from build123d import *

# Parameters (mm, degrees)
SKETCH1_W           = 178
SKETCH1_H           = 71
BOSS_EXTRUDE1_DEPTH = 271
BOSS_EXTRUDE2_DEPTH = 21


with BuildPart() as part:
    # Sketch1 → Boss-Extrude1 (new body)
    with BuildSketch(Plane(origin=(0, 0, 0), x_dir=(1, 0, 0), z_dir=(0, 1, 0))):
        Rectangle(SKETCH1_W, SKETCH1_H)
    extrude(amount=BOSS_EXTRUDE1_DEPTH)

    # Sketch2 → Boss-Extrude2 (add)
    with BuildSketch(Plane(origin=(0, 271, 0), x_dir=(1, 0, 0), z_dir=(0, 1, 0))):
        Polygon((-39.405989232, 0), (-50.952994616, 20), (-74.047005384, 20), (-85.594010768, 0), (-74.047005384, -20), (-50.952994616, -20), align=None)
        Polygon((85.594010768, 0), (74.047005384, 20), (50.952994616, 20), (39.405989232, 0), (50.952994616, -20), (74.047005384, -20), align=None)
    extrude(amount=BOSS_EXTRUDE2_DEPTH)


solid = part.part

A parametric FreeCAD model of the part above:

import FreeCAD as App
import Part
import Sketcher
from FreeCAD import Vector
Q = App.Units.Quantity


def add_polygon(sketch, points):
    """Adds a closed chain of lines whose ends are joined by coincident constraints."""
    first, n = sketch.GeometryCount, len(points)
    for a, b in zip(points, points[1:] + points[:1]):
        sketch.addGeometry(Part.LineSegment(App.Vector(*a, 0), App.Vector(*b, 0)), False)
    for i in range(n):
        sketch.addConstraint(Sketcher.Constraint("Coincident", first + i, 2, first + (i + 1) % n, 1))

doc = App.newDocument("Part")
body = doc.addObject("PartDesign::Body", "Body")

# Sketch on XZ plane
sketch1 = body.newObject("Sketcher::SketchObject", "Sketch")
sketch1.AttachmentSupport = (doc.getObject("XZ_Plane"), [""])
sketch1.MapMode = "FlatFace"
add_polygon(sketch1, [(-89, -36), (-89, 36), (89, 36), (89, -36)])  # lines 0-3
sketch1.addConstraint([
    Sketcher.Constraint("Vertical", 0),
    Sketcher.Constraint("Horizontal", 1),
    Sketcher.Constraint("Vertical", 2),
    Sketcher.Constraint("Horizontal", 3),
    Sketcher.Constraint("Symmetric", 0, 2, 2, 2, -1, 1),
    Sketcher.Constraint("DistanceX", 1, 1, 1, 2, Q("178 mm")),
    Sketcher.Constraint("DistanceY", 0, 1, 0, 2, Q("71 mm")),
])
pad1 = body.newObject("PartDesign::Pad", "Pad")
pad1.Profile = sketch1
pad1.Length = 271
pad1.Reversed = True

# Sketch on XZ plane
sketch2 = body.newObject("Sketcher::SketchObject", "Sketch001")
sketch2.AttachmentSupport = (doc.getObject("XZ_Plane"), [""])
sketch2.MapMode = "FlatFace"
sketch2.AttachmentOffset = App.Placement(Vector(0, 0, -271), App.Rotation())
add_polygon(sketch2, [(-39, 0), (-51, -20), (-74, -20), (-86, 0), (-74, 20), (-51, 20)])  # lines 0-5
add_polygon(sketch2, [(86, 0), (74, -20), (51, -20), (39, 0), (51, 20), (74, 20)])  # lines 6-11
sketch2.addConstraint([
    Sketcher.Constraint("Horizontal", 1),
    Sketcher.Constraint("Horizontal", 4),
    Sketcher.Constraint("Horizontal", 7),
    Sketcher.Constraint("Horizontal", 10),
    Sketcher.Constraint("Symmetric", 3, 2, 6, 2, -1, 1),
    Sketcher.Constraint("Symmetric", 5, 2, 8, 2, -1, 1),
    Sketcher.Constraint("Symmetric", 0, 2, 9, 2, -1, 1),
    Sketcher.Constraint("Symmetric", 2, 2, 11, 2, -1, 1),
    Sketcher.Constraint("Symmetric", 1, 2, 6, 2, -2),
    Sketcher.Constraint("PointOnObject", 2, 2, -1),
    Sketcher.Constraint("PointOnObject", 5, 2, -1),
    Sketcher.Constraint("Parallel", 0, 3),
    Sketcher.Constraint("Parallel", 2, 5),
    Sketcher.Constraint("Parallel", 5, 8),
    Sketcher.Constraint("Parallel", 8, 11),
    Sketcher.Constraint("Angle", 0, Q("-120 deg")),
    Sketcher.Constraint("DistanceY", 0, 2, -1, 1, Q("20 mm")),
    Sketcher.Constraint("DistanceX", 0, 2, 6, 2, Q("125 mm")),
    Sketcher.Constraint("DistanceX", 1, 2, 1, 1, Q("23.094011 mm")),
])
pad2 = body.newObject("PartDesign::Pad", "Pad001")
pad2.Profile = sketch2
pad2.Length = 21
pad2.Reversed = True

doc.recompute()
